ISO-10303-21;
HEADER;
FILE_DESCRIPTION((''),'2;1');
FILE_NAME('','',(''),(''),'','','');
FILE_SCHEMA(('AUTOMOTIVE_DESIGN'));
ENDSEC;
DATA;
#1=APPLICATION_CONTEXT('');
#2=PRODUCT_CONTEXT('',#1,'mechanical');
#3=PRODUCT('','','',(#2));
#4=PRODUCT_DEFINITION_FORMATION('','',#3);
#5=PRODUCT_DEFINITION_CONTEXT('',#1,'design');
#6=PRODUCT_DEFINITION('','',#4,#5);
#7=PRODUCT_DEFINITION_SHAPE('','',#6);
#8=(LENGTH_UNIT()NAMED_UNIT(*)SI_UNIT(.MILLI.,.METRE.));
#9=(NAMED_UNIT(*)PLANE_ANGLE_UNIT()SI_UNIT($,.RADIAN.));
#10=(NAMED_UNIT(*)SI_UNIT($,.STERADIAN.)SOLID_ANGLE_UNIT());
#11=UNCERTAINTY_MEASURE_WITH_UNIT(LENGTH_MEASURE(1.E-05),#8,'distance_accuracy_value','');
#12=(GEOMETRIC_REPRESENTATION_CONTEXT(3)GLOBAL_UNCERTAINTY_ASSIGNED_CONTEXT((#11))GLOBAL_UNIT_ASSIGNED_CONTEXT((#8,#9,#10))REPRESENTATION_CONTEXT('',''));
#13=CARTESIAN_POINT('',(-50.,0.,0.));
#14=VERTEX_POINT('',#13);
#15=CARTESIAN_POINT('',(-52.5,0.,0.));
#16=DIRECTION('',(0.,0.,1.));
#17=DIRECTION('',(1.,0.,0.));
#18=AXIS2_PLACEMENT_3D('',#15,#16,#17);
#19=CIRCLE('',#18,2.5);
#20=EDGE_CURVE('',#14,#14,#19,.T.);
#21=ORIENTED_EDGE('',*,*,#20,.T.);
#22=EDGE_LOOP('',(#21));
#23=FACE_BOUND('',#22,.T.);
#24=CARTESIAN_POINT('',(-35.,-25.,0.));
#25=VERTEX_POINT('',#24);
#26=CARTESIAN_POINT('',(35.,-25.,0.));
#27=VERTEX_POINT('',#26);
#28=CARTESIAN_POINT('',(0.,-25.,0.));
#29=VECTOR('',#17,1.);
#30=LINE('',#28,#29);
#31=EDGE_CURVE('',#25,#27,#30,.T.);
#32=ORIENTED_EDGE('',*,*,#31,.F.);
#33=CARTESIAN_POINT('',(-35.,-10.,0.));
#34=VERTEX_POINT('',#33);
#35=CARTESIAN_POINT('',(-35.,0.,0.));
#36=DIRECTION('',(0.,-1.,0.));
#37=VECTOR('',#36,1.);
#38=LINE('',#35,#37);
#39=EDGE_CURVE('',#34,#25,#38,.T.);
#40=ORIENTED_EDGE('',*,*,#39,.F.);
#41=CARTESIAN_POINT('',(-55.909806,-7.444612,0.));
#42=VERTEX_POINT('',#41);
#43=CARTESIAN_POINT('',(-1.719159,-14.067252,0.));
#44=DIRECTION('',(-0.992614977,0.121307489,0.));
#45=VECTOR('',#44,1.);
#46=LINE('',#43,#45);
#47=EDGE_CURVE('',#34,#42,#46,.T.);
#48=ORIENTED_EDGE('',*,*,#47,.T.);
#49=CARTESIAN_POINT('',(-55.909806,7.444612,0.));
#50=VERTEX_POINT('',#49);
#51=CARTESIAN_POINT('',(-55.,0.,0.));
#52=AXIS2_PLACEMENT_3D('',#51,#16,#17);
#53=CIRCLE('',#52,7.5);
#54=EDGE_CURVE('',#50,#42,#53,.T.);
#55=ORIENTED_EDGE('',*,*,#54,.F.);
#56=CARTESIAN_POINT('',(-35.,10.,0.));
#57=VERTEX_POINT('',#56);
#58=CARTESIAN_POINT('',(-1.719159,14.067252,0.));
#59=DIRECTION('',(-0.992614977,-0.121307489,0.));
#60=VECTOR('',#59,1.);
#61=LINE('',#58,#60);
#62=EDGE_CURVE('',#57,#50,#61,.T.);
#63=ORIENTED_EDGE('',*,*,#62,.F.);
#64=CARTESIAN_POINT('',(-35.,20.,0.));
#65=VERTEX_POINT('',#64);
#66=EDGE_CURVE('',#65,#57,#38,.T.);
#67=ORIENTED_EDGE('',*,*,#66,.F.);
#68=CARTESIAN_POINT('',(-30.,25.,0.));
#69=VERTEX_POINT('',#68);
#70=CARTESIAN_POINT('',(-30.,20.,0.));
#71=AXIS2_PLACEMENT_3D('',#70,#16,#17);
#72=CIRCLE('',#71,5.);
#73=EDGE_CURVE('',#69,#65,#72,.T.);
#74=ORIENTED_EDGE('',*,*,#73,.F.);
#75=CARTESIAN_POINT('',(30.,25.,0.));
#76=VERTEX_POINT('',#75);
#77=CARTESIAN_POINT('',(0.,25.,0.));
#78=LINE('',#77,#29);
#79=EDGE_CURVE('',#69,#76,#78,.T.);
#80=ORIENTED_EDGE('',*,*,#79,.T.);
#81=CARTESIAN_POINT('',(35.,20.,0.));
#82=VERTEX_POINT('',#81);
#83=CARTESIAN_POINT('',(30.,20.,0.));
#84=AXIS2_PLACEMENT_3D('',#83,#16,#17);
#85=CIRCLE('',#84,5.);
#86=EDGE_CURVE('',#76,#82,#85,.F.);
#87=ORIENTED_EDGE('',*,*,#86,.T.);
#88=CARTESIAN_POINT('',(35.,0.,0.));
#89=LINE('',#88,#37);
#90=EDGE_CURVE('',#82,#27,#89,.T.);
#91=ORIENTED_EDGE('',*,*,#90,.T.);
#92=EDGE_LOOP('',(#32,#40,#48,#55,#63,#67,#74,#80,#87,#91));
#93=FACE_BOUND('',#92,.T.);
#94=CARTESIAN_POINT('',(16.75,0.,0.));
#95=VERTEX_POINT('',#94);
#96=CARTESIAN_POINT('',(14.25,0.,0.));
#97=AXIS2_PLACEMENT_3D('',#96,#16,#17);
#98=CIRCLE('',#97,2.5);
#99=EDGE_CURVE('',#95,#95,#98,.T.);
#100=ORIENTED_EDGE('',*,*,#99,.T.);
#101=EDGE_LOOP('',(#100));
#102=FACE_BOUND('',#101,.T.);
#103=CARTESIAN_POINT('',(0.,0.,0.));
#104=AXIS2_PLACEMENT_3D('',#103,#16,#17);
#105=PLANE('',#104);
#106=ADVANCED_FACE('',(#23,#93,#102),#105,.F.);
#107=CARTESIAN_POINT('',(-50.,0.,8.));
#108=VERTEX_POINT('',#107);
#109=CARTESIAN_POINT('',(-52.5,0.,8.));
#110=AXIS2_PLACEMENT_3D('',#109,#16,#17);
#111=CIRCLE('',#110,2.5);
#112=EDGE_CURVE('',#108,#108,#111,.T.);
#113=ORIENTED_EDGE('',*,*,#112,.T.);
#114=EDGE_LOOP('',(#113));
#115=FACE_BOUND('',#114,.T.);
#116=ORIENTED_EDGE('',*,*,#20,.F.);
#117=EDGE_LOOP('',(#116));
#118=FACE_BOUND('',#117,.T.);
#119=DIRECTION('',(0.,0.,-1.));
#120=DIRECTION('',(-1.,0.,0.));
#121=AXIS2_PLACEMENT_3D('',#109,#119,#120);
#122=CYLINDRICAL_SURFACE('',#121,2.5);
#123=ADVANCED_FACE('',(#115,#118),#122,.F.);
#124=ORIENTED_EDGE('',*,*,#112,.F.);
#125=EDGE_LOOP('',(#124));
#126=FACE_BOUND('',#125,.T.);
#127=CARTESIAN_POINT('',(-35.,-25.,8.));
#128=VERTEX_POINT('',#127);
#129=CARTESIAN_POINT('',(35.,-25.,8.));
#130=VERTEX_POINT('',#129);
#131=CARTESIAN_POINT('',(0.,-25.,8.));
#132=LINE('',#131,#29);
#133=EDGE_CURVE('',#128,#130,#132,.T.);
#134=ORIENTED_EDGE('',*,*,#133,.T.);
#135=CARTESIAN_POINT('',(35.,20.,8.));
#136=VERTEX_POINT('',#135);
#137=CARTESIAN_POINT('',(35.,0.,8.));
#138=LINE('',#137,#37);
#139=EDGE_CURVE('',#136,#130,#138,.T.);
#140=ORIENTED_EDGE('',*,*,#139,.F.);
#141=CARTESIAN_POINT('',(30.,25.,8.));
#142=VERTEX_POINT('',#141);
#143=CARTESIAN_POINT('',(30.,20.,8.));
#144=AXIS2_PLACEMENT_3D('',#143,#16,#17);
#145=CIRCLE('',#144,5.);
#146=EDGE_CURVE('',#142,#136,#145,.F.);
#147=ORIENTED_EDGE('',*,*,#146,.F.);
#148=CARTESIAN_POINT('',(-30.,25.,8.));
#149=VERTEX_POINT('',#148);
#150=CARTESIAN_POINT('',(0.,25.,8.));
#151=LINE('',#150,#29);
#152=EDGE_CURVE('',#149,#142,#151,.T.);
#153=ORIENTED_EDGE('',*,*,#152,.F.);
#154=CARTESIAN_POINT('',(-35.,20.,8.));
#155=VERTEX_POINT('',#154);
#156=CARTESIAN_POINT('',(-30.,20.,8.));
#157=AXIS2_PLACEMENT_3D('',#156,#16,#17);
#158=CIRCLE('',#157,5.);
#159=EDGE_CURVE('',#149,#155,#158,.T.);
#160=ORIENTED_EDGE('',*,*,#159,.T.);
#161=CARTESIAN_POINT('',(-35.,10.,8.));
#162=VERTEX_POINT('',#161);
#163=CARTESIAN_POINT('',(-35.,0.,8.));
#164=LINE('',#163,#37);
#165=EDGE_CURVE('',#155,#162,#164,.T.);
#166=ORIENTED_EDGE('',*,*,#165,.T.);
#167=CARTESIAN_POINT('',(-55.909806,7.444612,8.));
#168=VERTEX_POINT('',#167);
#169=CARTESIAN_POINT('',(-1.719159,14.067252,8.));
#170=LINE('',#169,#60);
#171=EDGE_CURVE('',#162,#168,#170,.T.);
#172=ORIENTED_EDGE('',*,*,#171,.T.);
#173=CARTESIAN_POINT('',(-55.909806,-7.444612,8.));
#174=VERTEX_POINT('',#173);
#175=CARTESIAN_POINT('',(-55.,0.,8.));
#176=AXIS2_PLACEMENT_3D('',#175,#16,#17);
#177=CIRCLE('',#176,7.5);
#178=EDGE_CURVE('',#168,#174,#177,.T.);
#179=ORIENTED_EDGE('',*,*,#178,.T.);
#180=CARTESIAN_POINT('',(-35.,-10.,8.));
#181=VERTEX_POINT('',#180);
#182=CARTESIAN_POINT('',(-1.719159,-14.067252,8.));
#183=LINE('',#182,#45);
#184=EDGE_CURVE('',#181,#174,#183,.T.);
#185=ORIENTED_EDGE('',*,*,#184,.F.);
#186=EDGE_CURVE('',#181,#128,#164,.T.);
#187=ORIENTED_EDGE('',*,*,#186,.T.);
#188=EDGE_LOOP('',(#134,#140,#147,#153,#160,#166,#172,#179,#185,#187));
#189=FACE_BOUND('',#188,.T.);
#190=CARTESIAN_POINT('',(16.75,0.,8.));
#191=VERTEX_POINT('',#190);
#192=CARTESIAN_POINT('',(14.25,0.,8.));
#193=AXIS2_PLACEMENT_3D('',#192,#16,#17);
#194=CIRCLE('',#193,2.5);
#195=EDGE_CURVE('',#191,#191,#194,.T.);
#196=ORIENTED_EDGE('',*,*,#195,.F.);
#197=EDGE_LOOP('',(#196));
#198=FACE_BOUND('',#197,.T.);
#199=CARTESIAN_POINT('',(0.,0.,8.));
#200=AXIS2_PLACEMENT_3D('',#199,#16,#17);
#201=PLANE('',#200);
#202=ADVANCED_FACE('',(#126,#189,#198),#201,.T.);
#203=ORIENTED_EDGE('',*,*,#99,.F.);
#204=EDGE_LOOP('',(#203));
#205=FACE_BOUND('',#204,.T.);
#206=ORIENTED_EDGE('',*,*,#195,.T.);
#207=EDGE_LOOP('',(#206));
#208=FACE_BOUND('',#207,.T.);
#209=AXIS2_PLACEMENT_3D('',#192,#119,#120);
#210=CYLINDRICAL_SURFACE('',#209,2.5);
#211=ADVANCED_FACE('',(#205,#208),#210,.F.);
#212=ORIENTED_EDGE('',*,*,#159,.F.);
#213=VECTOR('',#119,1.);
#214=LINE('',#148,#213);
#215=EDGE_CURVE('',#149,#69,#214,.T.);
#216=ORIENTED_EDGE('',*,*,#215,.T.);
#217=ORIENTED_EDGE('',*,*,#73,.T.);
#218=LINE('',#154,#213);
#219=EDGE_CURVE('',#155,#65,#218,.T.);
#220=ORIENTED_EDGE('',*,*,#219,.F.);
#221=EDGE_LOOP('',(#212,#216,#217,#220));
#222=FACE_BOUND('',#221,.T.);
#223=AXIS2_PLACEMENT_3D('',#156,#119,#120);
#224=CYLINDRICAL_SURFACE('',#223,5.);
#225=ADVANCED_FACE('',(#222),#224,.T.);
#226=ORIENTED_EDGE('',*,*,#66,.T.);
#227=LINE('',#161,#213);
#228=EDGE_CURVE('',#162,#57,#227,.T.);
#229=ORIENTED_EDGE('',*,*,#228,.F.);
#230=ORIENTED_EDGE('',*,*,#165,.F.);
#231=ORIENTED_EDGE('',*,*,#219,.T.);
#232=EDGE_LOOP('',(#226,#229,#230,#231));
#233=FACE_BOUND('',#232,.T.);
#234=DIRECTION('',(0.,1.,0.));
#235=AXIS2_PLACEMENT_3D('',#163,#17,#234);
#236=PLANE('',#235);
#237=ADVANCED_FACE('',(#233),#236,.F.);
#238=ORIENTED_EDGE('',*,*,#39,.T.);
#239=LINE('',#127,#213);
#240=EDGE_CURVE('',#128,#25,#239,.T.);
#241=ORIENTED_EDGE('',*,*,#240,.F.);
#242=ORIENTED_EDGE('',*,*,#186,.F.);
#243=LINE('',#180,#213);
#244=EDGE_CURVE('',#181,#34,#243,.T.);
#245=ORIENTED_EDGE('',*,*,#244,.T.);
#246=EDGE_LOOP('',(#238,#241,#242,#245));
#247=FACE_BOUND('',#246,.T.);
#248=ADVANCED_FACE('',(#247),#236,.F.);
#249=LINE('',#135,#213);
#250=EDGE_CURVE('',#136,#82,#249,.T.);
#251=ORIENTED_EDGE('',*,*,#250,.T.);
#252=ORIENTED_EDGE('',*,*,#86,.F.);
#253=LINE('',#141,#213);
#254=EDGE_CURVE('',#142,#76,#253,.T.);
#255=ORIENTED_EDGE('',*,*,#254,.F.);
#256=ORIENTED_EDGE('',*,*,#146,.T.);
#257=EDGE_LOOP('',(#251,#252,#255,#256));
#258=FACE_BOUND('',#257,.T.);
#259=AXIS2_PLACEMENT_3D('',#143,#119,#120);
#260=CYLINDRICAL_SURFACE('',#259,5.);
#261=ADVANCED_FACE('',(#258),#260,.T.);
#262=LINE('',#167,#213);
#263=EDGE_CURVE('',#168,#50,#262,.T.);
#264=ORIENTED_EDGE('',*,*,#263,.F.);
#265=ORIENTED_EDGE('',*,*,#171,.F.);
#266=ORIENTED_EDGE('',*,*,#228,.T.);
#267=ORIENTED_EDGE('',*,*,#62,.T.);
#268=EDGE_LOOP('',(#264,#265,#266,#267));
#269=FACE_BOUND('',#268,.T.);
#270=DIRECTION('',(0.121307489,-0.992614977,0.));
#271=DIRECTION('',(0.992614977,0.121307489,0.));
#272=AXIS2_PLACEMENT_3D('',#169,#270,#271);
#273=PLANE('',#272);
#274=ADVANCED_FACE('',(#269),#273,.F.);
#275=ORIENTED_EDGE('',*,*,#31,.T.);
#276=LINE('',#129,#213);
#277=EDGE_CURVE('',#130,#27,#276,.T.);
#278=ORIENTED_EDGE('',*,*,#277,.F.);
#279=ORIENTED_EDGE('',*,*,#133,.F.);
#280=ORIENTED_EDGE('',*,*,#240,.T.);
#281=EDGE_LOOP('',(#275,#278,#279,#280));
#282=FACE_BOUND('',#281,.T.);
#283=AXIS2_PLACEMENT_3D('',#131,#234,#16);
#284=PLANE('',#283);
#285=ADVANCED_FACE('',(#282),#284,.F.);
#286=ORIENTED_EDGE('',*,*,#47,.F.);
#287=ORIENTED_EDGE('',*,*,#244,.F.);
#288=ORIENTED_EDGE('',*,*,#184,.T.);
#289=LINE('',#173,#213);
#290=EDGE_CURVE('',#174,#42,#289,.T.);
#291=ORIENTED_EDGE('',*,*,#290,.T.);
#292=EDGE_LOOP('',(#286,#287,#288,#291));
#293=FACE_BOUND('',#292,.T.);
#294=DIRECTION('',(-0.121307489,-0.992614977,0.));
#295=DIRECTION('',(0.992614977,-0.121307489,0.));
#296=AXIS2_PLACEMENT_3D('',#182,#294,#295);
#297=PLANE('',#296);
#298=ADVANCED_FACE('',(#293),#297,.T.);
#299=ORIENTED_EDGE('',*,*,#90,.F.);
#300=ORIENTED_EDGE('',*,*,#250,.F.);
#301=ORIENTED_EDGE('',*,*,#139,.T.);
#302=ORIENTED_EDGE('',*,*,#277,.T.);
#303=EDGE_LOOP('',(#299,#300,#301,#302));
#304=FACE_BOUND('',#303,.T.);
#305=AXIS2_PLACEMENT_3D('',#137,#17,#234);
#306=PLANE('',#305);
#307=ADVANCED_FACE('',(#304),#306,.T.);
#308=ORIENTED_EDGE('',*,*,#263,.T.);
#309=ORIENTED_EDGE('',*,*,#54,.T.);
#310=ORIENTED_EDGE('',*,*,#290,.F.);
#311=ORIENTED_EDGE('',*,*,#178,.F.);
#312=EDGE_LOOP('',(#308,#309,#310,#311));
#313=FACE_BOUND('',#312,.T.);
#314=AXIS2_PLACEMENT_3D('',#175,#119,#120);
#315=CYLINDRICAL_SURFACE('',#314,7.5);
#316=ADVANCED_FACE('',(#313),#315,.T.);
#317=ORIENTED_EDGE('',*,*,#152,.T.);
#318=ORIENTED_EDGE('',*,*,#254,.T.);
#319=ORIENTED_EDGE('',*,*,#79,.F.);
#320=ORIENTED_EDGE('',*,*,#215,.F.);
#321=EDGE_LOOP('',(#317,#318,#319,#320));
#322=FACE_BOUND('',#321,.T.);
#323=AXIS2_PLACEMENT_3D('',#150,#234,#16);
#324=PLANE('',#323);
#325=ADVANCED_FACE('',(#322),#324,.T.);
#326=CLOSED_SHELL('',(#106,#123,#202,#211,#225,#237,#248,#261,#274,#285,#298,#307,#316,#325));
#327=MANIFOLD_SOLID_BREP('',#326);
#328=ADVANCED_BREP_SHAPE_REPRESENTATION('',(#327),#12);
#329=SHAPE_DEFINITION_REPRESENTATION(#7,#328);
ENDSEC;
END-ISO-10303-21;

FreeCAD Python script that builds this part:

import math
import FreeCAD as App
import Part
import Sketcher

V = App.Vector

doc = App.newDocument("Part")
params = doc.addObject("Spreadsheet::Sheet", "Params")
for row, (alias, value) in enumerate([
    ("sketch1_diameter", "5 mm"),
    ("sketch1_radius", "5 mm"),
    ("sketch1_radius2", "7.5 mm"),
    ("sketch1_width", "60 mm"),
    ("sketch1_height", "10 mm"),
    ("pad1_length", "8 mm"),
], start=1):
    params.set(f"A{row}", alias)
    params.set(f"B{row}", "=" + value)
    params.setAlias(f"B{row}", alias)

body = doc.addObject("PartDesign::Body", "Body")

# Sketch on XY plane
sketch1 = body.newObject("Sketcher::SketchObject", "Sketch")
sketch1.AttachmentSupport = (doc.getObject("XY_Plane"), [""])
sketch1.MapMode = "FlatFace"
sketch1.addGeometry(Part.ArcOfCircle(Part.Circle(V(30, 20, 0), V(0, 0, 1), 5), math.radians(0), math.radians(90)), False)
sketch1.addGeometry(Part.LineSegment(V(30, 25, 0), V(-30, 25, 0)), False)
sketch1.addGeometry(Part.ArcOfCircle(Part.Circle(V(-30, 20, 0), V(0, 0, 1), 5), math.radians(90), math.radians(180)), False)
sketch1.addGeometry(Part.LineSegment(V(-35, 20, 0), V(-35, 10, 0)), False)
sketch1.addGeometry(Part.LineSegment(V(-35, 10, 0), V(-55.9, 7.4, 0)), False)
sketch1.addGeometry(Part.ArcOfCircle(Part.Circle(V(-55, 0, 0), V(0, 0, 1), 7.5), math.radians(97), math.radians(263)), False)
sketch1.addGeometry(Part.LineSegment(V(-55.9, -7.4, 0), V(-35, -10, 0)), False)
sketch1.addGeometry(Part.LineSegment(V(-35, -10, 0), V(-35, -25, 0)), False)
sketch1.addGeometry(Part.LineSegment(V(-35, -25, 0), V(35, -25, 0)), False)
sketch1.addGeometry(Part.LineSegment(V(35, -25, 0), V(35, 20, 0)), False)
sketch1.addGeometry(Part.Circle(V(14.2, 0, 0), V(0, 0, 1), 2.5), False)
sketch1.addGeometry(Part.Circle(V(-52.5, 0, 0), V(0, 0, 1), 2.5), False)
sketch1.addConstraint(Sketcher.Constraint("Tangent", 0, 2, 1, 1))
sketch1.addConstraint(Sketcher.Constraint("Tangent", 1, 2, 2, 1))
sketch1.addConstraint(Sketcher.Constraint("Tangent", 2, 2, 3, 1))
sketch1.addConstraint(Sketcher.Constraint("Coincident", 3, 2, 4, 1))
sketch1.addConstraint(Sketcher.Constraint("Tangent", 4, 2, 5, 1))
sketch1.addConstraint(Sketcher.Constraint("Tangent", 5, 2, 6, 1))
sketch1.addConstraint(Sketcher.Constraint("Coincident", 6, 2, 7, 1))
sketch1.addConstraint(Sketcher.Constraint("Coincident", 7, 2, 8, 1))
sketch1.addConstraint(Sketcher.Constraint("Coincident", 8, 2, 9, 1))
sketch1.addConstraint(Sketcher.Constraint("Tangent", 9, 2, 0, 1))
sketch1.addConstraint(Sketcher.Constraint("Horizontal", 1))
sketch1.addConstraint(Sketcher.Constraint("Vertical", 3))
sketch1.addConstraint(Sketcher.Constraint("Vertical", 7))
sketch1.addConstraint(Sketcher.Constraint("Horizontal", 8))
sketch1.addConstraint(Sketcher.Constraint("Vertical", 9))
sketch1.addConstraint(Sketcher.Constraint("Equal", 0, 2))
sketch1.addConstraint(Sketcher.Constraint("Equal", 10, 11))
sketch1.addConstraint(Sketcher.Constraint("Symmetric", 4, 2, 5, 2, -1))
sketch1.addConstraint(Sketcher.Constraint("PointOnObject", 10, 3, -1))
sketch1.addConstraint(Sketcher.Constraint("PointOnObject", 11, 3, -1))
sketch1.addConstraint(Sketcher.Constraint("Vertical", 3, 2, 6, 2))
sketch1.addConstraint(Sketcher.Constraint("Diameter", 10, 5.0))
sketch1.addConstraint(Sketcher.Constraint("Radius", 0, 5.0))
sketch1.addConstraint(Sketcher.Constraint("Radius", 5, 7.5))
sketch1.addConstraint(Sketcher.Constraint("DistanceX", 1, 2, 1, 1, 60.0))
sketch1.addConstraint(Sketcher.Constraint("DistanceY", 3, 2, 3, 1, 10.0))
sketch1.addConstraint(Sketcher.Constraint("DistanceY", 7, 2, 7, 1, 15.0))
sketch1.addConstraint(Sketcher.Constraint("DistanceY", 9, 1, 9, 2, 45.0))
sketch1.addConstraint(Sketcher.Constraint("DistanceX", -1, 1, 0, 3, 30.0))
sketch1.addConstraint(Sketcher.Constraint("DistanceX", 5, 3, -1, 1, 55.0))
sketch1.addConstraint(Sketcher.Constraint("DistanceX", 11, 3, -1, 1, 52.5))
sketch1.addConstraint(Sketcher.Constraint("DistanceX", -1, 1, 10, 3, 14.25))
sketch1.setExpression("Constraints[21]", "Params.sketch1_diameter")
sketch1.setExpression("Constraints[22]", "Params.sketch1_radius")
sketch1.setExpression("Constraints[23]", "Params.sketch1_radius2")
sketch1.setExpression("Constraints[24]", "Params.sketch1_width")
sketch1.setExpression("Constraints[25]", "Params.sketch1_height")
pad1 = body.newObject("PartDesign::Pad", "Pad")
pad1.Profile = sketch1
pad1.setExpression("Length", "Params.pad1_length")

doc.recompute()
